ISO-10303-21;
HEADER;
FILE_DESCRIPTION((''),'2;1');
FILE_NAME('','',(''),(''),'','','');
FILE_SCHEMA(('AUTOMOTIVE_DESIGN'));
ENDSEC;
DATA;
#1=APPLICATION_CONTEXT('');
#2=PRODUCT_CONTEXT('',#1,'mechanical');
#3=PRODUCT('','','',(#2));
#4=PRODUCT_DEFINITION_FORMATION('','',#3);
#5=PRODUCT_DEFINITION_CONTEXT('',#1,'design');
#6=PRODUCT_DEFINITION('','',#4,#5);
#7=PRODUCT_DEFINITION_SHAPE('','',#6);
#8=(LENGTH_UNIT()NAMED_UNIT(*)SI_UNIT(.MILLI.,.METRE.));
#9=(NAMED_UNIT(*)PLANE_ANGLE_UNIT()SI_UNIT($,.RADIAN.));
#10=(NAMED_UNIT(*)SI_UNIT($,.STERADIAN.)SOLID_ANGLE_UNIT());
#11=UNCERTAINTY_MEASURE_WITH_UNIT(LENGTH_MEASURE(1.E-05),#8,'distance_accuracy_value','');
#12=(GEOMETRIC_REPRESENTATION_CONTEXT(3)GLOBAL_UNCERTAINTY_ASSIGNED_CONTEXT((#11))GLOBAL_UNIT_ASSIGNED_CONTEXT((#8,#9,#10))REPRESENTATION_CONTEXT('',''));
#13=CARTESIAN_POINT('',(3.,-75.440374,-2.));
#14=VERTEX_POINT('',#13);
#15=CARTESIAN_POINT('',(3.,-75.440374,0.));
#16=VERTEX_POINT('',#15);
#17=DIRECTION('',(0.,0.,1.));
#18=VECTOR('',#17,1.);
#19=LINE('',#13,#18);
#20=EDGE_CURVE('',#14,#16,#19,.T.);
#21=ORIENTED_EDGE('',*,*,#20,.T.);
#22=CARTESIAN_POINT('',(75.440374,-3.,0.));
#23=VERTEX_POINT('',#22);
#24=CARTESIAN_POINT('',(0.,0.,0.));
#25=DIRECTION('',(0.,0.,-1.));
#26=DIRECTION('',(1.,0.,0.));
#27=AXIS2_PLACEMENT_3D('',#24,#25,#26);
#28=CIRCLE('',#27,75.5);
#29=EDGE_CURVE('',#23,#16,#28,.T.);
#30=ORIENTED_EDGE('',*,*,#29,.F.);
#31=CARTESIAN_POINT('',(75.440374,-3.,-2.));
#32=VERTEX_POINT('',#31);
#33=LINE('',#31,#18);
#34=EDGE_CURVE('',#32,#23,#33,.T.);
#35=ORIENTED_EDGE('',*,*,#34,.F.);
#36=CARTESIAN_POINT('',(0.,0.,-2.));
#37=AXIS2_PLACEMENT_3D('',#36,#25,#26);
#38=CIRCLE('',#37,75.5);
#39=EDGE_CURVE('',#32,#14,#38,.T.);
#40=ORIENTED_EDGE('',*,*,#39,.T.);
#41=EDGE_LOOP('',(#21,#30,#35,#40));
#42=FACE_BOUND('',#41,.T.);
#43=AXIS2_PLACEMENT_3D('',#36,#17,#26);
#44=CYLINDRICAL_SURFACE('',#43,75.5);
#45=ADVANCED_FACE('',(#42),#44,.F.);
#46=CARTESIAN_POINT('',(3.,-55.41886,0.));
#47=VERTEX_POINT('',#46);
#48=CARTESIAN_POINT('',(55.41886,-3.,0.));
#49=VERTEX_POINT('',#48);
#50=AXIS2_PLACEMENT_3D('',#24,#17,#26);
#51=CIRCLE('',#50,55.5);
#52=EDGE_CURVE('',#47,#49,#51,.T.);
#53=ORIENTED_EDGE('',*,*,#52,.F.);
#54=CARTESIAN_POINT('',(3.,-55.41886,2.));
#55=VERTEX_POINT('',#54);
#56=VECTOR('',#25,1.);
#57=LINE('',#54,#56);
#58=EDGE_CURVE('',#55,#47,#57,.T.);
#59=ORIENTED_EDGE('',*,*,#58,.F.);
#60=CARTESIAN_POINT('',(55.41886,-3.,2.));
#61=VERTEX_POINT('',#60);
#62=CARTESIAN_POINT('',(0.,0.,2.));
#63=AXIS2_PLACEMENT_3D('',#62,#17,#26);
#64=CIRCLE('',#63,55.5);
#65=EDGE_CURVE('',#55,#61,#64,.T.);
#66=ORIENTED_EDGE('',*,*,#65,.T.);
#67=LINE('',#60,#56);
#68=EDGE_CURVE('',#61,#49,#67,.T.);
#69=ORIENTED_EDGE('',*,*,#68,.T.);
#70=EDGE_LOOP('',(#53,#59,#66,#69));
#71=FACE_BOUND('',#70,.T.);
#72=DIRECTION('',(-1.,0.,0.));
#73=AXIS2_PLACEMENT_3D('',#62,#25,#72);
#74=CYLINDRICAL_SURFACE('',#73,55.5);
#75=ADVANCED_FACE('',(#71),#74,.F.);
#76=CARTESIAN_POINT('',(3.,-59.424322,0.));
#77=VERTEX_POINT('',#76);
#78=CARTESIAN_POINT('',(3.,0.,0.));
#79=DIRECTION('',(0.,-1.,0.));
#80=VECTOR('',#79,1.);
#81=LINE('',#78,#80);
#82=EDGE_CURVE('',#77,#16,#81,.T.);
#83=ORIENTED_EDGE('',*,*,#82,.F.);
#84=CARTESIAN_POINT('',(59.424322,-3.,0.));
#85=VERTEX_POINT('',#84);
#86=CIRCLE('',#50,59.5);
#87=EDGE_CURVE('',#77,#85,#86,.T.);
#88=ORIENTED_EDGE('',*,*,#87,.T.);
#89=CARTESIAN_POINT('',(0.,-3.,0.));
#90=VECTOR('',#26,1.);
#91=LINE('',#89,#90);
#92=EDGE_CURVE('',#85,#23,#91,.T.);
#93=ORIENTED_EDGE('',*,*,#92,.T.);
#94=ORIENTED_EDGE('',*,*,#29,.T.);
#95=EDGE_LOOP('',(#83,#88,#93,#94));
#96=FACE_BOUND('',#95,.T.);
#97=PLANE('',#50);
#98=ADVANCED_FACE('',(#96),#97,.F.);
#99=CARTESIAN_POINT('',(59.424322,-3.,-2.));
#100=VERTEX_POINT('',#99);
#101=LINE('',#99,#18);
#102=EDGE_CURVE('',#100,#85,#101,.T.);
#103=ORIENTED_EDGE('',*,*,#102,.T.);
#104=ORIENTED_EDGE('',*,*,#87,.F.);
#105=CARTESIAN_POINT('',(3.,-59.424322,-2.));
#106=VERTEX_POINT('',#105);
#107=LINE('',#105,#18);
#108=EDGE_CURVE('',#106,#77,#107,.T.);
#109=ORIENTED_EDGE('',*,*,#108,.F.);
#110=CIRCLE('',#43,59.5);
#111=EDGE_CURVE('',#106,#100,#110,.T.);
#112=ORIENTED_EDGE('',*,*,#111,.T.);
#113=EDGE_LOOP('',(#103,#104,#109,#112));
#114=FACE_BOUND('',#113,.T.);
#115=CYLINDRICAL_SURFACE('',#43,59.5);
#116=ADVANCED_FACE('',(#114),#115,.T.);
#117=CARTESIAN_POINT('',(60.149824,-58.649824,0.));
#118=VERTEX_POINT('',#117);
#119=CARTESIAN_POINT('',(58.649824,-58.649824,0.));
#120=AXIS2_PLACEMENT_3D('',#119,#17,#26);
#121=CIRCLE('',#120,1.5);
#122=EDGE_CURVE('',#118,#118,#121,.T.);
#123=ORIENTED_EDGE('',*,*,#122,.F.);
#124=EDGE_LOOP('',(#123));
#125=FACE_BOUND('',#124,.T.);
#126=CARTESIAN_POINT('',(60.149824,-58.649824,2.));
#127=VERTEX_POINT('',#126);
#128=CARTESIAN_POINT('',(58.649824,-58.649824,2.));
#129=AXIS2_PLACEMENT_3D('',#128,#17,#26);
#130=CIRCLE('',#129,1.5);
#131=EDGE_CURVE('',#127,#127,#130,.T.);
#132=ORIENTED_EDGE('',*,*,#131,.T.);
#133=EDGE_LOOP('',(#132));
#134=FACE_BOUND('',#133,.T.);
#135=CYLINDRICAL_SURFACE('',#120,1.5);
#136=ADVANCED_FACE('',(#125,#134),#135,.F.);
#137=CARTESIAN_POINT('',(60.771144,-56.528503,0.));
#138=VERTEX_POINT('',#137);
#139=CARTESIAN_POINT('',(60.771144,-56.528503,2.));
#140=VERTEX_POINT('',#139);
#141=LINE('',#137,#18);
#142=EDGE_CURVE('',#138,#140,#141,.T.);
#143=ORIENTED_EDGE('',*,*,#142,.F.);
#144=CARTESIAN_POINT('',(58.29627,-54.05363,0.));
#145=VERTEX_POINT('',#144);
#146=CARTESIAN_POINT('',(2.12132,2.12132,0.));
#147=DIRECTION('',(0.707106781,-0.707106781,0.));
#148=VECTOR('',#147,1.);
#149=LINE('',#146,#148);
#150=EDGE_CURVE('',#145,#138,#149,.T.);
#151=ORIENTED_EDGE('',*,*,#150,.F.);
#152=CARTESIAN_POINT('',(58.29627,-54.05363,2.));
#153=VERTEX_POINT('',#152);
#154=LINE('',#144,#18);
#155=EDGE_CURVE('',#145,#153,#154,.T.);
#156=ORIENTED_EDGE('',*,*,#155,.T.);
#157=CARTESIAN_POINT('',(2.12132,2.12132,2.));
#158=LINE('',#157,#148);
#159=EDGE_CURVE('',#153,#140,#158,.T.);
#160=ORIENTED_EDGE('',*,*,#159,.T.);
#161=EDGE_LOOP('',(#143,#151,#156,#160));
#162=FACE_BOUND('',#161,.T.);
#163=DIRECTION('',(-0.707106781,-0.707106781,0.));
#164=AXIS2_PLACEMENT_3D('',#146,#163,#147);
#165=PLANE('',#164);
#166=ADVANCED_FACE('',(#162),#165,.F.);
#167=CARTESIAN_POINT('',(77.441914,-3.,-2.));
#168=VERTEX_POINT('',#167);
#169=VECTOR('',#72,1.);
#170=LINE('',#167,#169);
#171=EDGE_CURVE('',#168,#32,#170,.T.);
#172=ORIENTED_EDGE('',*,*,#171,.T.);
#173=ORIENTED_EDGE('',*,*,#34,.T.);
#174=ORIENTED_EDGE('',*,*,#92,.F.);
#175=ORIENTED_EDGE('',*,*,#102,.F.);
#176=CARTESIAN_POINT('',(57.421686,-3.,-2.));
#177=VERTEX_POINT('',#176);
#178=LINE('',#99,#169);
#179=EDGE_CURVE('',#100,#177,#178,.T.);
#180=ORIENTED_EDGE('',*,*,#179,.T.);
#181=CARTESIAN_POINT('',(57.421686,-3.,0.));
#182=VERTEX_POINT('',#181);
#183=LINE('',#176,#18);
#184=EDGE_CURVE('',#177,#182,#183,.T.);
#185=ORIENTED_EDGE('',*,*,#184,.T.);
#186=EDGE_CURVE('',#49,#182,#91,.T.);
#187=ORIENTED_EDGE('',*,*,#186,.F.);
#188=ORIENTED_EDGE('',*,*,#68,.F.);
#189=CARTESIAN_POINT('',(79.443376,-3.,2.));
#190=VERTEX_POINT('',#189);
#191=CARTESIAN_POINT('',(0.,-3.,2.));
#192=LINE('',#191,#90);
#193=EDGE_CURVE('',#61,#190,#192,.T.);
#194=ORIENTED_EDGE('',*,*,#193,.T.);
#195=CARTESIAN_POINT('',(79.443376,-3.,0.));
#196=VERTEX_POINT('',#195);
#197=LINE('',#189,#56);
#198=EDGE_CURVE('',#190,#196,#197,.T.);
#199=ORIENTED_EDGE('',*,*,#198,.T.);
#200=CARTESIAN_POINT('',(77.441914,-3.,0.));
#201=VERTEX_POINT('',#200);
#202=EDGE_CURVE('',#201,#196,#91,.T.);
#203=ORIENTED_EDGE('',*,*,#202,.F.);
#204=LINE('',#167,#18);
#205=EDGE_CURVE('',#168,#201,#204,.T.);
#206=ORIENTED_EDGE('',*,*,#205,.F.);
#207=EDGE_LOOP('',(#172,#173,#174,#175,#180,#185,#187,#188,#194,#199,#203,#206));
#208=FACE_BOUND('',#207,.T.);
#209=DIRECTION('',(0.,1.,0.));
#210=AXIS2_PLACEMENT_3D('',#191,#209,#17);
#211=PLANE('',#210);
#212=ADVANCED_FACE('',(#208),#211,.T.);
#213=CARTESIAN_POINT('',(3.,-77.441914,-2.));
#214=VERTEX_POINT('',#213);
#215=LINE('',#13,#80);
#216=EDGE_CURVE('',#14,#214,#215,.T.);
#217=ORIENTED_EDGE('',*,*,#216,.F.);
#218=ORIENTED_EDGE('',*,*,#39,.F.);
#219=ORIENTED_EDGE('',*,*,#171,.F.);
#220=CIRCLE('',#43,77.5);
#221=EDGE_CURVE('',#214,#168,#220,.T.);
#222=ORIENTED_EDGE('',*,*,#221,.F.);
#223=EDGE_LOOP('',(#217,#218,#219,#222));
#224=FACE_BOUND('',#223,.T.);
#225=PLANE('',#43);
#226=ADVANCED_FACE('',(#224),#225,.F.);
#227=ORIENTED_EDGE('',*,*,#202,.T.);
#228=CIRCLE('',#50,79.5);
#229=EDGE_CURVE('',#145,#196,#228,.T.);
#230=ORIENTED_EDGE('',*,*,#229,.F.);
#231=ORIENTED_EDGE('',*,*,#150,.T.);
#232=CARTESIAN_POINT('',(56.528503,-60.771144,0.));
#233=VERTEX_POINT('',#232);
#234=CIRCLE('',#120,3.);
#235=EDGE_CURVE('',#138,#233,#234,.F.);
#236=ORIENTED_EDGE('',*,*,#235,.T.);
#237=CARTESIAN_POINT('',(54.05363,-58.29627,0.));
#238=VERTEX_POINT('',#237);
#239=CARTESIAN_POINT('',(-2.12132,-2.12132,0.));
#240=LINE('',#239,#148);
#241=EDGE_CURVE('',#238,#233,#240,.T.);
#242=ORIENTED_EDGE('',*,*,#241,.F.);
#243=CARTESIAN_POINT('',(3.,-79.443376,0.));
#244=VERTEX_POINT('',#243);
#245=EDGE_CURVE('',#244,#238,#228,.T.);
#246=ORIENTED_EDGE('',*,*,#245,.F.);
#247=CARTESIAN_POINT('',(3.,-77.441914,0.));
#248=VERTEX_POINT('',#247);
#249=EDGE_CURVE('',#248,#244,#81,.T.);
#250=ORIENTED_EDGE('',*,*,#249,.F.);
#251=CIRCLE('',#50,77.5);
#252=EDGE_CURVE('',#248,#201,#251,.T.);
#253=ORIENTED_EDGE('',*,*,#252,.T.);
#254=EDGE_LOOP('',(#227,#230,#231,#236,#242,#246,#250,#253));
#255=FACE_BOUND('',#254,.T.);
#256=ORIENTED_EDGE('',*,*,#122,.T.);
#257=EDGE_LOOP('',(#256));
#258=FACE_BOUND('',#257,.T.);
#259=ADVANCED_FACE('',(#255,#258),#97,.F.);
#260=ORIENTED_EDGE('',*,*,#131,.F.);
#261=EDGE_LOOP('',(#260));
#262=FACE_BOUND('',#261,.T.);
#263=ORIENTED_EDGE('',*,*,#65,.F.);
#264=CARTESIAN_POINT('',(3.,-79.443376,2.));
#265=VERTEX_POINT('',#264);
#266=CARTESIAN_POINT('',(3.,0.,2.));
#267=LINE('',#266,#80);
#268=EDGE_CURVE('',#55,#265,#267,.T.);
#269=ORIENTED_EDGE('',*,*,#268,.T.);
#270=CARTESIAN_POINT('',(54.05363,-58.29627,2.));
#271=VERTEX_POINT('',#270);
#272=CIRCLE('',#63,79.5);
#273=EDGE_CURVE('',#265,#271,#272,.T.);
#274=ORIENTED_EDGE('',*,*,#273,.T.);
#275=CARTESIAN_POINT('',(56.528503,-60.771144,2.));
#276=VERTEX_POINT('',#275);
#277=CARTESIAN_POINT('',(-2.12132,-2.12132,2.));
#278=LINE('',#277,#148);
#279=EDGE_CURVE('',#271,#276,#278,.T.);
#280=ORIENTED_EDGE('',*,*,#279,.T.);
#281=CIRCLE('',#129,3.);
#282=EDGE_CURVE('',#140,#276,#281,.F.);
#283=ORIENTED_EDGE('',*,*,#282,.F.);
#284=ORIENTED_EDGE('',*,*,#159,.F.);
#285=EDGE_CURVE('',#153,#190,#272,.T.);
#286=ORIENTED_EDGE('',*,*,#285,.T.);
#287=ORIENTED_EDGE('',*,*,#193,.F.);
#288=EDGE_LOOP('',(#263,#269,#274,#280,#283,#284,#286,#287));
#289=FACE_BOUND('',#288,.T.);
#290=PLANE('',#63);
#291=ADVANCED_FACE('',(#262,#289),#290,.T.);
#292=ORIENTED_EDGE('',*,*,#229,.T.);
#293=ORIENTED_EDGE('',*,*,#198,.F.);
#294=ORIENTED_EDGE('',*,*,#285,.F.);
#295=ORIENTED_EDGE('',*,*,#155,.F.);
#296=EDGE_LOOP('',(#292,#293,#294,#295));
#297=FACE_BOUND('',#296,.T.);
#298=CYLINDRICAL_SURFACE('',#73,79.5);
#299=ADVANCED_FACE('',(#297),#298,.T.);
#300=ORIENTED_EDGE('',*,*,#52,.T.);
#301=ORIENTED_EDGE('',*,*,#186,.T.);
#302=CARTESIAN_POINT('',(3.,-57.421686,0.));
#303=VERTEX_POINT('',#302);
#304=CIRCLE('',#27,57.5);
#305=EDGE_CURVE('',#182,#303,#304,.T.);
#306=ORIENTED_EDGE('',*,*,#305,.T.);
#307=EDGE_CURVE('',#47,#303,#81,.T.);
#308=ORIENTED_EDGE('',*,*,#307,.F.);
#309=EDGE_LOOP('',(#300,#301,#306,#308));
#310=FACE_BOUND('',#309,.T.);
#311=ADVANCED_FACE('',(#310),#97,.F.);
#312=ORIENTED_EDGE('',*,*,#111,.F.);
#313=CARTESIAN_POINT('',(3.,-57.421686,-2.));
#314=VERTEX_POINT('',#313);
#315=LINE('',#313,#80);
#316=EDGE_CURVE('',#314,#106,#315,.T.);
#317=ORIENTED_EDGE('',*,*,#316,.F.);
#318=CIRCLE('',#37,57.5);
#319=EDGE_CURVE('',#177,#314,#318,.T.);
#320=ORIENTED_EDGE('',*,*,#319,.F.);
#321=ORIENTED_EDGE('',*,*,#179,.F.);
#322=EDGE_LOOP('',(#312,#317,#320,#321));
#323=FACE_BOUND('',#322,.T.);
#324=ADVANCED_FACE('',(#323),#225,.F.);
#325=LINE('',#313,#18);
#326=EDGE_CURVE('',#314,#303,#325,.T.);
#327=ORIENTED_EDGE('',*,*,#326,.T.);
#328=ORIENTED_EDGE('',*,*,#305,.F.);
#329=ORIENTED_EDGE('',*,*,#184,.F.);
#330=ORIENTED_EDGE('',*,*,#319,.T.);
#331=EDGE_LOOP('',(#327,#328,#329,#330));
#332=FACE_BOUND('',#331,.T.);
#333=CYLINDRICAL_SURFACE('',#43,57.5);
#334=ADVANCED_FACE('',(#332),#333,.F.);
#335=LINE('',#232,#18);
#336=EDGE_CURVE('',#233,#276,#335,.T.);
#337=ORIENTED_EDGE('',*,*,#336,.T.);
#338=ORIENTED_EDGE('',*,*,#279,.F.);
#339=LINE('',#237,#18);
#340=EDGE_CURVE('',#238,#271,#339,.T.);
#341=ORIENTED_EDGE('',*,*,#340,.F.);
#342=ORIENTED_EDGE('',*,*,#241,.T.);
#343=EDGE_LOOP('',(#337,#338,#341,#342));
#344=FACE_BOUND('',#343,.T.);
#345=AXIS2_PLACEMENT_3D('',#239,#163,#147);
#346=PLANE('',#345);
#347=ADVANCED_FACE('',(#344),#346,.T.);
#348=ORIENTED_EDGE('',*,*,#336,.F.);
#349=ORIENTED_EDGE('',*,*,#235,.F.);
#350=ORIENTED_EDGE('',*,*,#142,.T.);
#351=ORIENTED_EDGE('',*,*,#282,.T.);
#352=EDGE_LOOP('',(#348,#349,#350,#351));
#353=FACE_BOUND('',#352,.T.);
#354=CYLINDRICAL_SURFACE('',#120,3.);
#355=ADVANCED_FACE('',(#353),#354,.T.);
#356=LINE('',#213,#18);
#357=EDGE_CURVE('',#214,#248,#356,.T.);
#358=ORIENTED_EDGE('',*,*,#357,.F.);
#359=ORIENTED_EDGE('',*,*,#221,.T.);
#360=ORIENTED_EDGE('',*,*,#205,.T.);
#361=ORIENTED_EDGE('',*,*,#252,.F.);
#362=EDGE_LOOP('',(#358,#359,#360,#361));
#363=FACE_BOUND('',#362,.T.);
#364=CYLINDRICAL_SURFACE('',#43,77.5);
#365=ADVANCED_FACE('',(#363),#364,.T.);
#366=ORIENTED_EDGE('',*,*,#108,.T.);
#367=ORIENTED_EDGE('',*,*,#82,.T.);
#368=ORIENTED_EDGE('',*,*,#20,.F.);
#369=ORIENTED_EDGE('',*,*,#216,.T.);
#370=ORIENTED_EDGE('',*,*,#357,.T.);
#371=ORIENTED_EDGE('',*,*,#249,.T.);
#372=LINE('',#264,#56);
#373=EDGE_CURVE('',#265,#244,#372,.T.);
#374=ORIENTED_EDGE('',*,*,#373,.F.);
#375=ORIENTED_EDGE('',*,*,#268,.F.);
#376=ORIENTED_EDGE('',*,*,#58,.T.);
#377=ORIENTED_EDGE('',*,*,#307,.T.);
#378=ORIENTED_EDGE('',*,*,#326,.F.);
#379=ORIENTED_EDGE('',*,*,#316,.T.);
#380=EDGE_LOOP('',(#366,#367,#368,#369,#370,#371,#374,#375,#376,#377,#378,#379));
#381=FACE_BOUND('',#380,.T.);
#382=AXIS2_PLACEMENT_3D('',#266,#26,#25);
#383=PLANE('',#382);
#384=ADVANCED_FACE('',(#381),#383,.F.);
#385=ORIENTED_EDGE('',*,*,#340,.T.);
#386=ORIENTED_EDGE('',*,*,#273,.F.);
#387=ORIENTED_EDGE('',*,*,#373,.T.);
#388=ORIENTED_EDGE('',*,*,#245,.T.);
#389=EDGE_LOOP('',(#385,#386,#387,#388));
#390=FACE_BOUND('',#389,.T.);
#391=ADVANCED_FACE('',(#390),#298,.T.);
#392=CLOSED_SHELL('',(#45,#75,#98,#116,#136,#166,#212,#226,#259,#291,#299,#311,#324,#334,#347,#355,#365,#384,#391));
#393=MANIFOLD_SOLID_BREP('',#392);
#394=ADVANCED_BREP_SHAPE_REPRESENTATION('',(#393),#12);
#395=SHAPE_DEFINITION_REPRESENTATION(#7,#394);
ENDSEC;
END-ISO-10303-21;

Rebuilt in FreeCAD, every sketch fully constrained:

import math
import FreeCAD as App
import Part
import Sketcher
from FreeCAD import Vector
Q = App.Units.Quantity

doc = App.newDocument("Part")
params = doc.addObject("Spreadsheet::Sheet", "Params")
for row, (alias, value) in enumerate([
    ("sketch1_radius", "79.5 mm"),
    ("sketch1_radius2", "55.5 mm"),
    ("pad1_length", "2 mm"),
    ("sketch2_radius", "59.5 mm"),
    ("sketch2_radius2", "57.5 mm"),
    ("sketch2_radius3", "75.5 mm"),
    ("sketch2_radius4", "77.5 mm"),
    ("pad2_length", "2 mm"),
    ("sketch3_diameter", "3 mm"),
    ("sketch3_radius", "3 mm"),
    ("sketch3_radius2", "79.500001 mm"),
    ("sketch3_length", "3.5 mm"),
    ("pad3_length", "2 mm"),
], start=1):
    params.set(f"A{row}", alias)
    params.set(f"B{row}", "=" + value)
    params.setAlias(f"B{row}", alias)

body = doc.addObject("PartDesign::Body", "Body")

# Sketch on XY plane
sketch1 = body.newObject("Sketcher::SketchObject", "Sketch")
sketch1.AttachmentSupport = (doc.getObject("XY_Plane"), [""])
sketch1.MapMode = "FlatFace"
sketch1.addGeometry([
    Part.ArcOfCircle(Part.Circle(Vector(0, 0, 0), Vector(0, 0, 1), 80), math.radians(-88), math.radians(-2)),
    Part.LineSegment(Vector(79, -3, 0), Vector(55, -3, 0)),
    Part.ArcOfCircle(Part.Circle(Vector(0, 0, 0), Vector(0, 0, 1), 56), math.radians(-87), math.radians(-3)),
    Part.LineSegment(Vector(3, -55, 0), Vector(3, -79, 0)),
], False)
sketch1.addConstraint([
    Sketcher.Constraint("Coincident", 0, 2, 1, 1),
    Sketcher.Constraint("Coincident", 1, 2, 2, 2),
    Sketcher.Constraint("Coincident", 2, 1, 3, 1),
    Sketcher.Constraint("Coincident", 3, 2, 0, 1),
    Sketcher.Constraint("Horizontal", 1),
    Sketcher.Constraint("Vertical", 3),
    Sketcher.Constraint("Coincident", 0, 3, -1, 1),
    Sketcher.Constraint("Coincident", 2, 3, -1, 1),
    Sketcher.Constraint("Equal", 1, 3),
    Sketcher.Constraint("Radius", 0, 79.5),
    Sketcher.Constraint("Radius", 2, 55.5),
    Sketcher.Constraint("DistanceY", 0, 2, -1, 1, 3.0),
])
sketch1.setExpression("Constraints[9]", "Params.sketch1_radius")
sketch1.setExpression("Constraints[10]", "Params.sketch1_radius2")
pad1 = body.newObject("PartDesign::Pad", "Pad")
pad1.Profile = sketch1
pad1.setExpression("Length", "Params.pad1_length")

# Sketch on XY plane
sketch2 = body.newObject("Sketcher::SketchObject", "Sketch001")
sketch2.AttachmentSupport = (doc.getObject("XY_Plane"), [""])
sketch2.MapMode = "FlatFace"
sketch2.addGeometry([
    Part.LineSegment(Vector(3, -57.4, 0), Vector(3, -59.4, 0)),  # 0
    Part.ArcOfCircle(Part.Circle(Vector(0, 0, 0), Vector(0, 0, 1), 59.5), math.radians(-87), math.radians(-3)),  # 1
    Part.LineSegment(Vector(59.4, -3, 0), Vector(57.4, -3, 0)),  # 2
    Part.ArcOfCircle(Part.Circle(Vector(0, 0, 0), Vector(0, 0, 1), 57.5), math.radians(-87), math.radians(-3)),  # 3
    Part.LineSegment(Vector(77.4, -3, 0), Vector(75.4, -3, 0)),  # 4
    Part.ArcOfCircle(Part.Circle(Vector(0, 0, 0), Vector(0, 0, 1), 75.5), math.radians(-88), math.radians(-2)),  # 5
    Part.LineSegment(Vector(3, -75.4, 0), Vector(3, -77.4, 0)),  # 6
    Part.ArcOfCircle(Part.Circle(Vector(0, 0, 0), Vector(0, 0, 1), 77.5), math.radians(-88), math.radians(-2)),  # 7
], False)
sketch2.addConstraint([
    Sketcher.Constraint("Coincident", 0, 2, 1, 1),
    Sketcher.Constraint("Coincident", 1, 2, 2, 1),
    Sketcher.Constraint("Coincident", 2, 2, 3, 2),
    Sketcher.Constraint("Coincident", 3, 1, 0, 1),
    Sketcher.Constraint("Coincident", 4, 2, 5, 2),
    Sketcher.Constraint("Coincident", 5, 1, 6, 1),
    Sketcher.Constraint("Coincident", 6, 2, 7, 1),
    Sketcher.Constraint("Coincident", 7, 2, 4, 1),
    Sketcher.Constraint("Vertical", 0),
    Sketcher.Constraint("Horizontal", 2),
    Sketcher.Constraint("Horizontal", 4),
    Sketcher.Constraint("Vertical", 6),
    Sketcher.Constraint("Coincident", 1, 3, -1, 1),
    Sketcher.Constraint("Coincident", 3, 3, -1, 1),
    Sketcher.Constraint("Coincident", 5, 3, -1, 1),
    Sketcher.Constraint("Coincident", 7, 3, -1, 1),
    Sketcher.Constraint("Horizontal", 2, 2, 4, 2),
    Sketcher.Constraint("Vertical", 3, 1, 5, 1),
    Sketcher.Constraint("Radius", 1, 59.5),
    Sketcher.Constraint("Radius", 3, 57.5),
    Sketcher.Constraint("Radius", 5, 75.5),
    Sketcher.Constraint("Radius", 7, 77.5),
    Sketcher.Constraint("DistanceX", -1, 1, 0, 2, 3.0),
    Sketcher.Constraint("DistanceY", 1, 2, -1, 1, 3.0),
])
sketch2.setExpression("Constraints[18]", "Params.sketch2_radius")
sketch2.setExpression("Constraints[19]", "Params.sketch2_radius2")
sketch2.setExpression("Constraints[20]", "Params.sketch2_radius3")
sketch2.setExpression("Constraints[21]", "Params.sketch2_radius4")
pad2 = body.newObject("PartDesign::Pad", "Pad001")
pad2.Profile = sketch2
pad2.setExpression("Length", "Params.pad2_length")
pad2.Reversed = True

# Sketch on XY plane
sketch3 = body.newObject("Sketcher::SketchObject", "Sketch002")
sketch3.AttachmentSupport = (doc.getObject("XY_Plane"), [""])
sketch3.MapMode = "FlatFace"
sketch3.addGeometry([
    Part.ArcOfCircle(Part.Circle(Vector(0, 0, 0), Vector(0, 0, 1), 79.5), math.radians(-47.16), math.radians(-42.84)),  # 0
    Part.LineSegment(Vector(54.1, -58.3, 0), Vector(56.5, -60.8, 0)),  # 1
    Part.ArcOfCircle(Part.Circle(Vector(58.6, -58.6, 0), Vector(0, 0, 1), 3), math.radians(-135), math.radians(45)),  # 2
    Part.LineSegment(Vector(60.8, -56.5, 0), Vector(58.3, -54.1, 0)),  # 3
    Part.Circle(Vector(58.6, -58.6, 0), Vector(0, 0, 1), 1.5),  # 4
], False)
sketch3.addConstraint([
    Sketcher.Constraint("Coincident", 0, 1, 1, 1),
    Sketcher.Constraint("Tangent", 1, 2, 2, 1),
    Sketcher.Constraint("Tangent", 2, 2, 3, 1),
    Sketcher.Constraint("Coincident", 3, 2, 0, 2),
    Sketcher.Constraint("Coincident", 0, 3, -1, 1),
    Sketcher.Constraint("Coincident", 4, 3, 2, 3),
    Sketcher.Constraint("Parallel", 1, 3),
    Sketcher.Constraint("Equal", 1, 3),
    Sketcher.Constraint("Diameter", 4, 3.0),
    Sketcher.Constraint("Radius", 2, 3.0),
    Sketcher.Constraint("Radius", 0, 79.500001),
    Sketcher.Constraint("Angle", 1, Q("-45 deg")),
    Sketcher.Constraint("Distance", 1, 3.5),
])
sketch3.setExpression("Constraints[8]", "Params.sketch3_diameter")
sketch3.setExpression("Constraints[9]", "Params.sketch3_radius")
sketch3.setExpression("Constraints[10]", "Params.sketch3_radius2")
sketch3.setExpression("Constraints[12]", "Params.sketch3_length")
pad3 = body.newObject("PartDesign::Pad", "Pad002")
pad3.Profile = sketch3
pad3.setExpression("Length", "Params.pad3_length")

doc.recompute()
